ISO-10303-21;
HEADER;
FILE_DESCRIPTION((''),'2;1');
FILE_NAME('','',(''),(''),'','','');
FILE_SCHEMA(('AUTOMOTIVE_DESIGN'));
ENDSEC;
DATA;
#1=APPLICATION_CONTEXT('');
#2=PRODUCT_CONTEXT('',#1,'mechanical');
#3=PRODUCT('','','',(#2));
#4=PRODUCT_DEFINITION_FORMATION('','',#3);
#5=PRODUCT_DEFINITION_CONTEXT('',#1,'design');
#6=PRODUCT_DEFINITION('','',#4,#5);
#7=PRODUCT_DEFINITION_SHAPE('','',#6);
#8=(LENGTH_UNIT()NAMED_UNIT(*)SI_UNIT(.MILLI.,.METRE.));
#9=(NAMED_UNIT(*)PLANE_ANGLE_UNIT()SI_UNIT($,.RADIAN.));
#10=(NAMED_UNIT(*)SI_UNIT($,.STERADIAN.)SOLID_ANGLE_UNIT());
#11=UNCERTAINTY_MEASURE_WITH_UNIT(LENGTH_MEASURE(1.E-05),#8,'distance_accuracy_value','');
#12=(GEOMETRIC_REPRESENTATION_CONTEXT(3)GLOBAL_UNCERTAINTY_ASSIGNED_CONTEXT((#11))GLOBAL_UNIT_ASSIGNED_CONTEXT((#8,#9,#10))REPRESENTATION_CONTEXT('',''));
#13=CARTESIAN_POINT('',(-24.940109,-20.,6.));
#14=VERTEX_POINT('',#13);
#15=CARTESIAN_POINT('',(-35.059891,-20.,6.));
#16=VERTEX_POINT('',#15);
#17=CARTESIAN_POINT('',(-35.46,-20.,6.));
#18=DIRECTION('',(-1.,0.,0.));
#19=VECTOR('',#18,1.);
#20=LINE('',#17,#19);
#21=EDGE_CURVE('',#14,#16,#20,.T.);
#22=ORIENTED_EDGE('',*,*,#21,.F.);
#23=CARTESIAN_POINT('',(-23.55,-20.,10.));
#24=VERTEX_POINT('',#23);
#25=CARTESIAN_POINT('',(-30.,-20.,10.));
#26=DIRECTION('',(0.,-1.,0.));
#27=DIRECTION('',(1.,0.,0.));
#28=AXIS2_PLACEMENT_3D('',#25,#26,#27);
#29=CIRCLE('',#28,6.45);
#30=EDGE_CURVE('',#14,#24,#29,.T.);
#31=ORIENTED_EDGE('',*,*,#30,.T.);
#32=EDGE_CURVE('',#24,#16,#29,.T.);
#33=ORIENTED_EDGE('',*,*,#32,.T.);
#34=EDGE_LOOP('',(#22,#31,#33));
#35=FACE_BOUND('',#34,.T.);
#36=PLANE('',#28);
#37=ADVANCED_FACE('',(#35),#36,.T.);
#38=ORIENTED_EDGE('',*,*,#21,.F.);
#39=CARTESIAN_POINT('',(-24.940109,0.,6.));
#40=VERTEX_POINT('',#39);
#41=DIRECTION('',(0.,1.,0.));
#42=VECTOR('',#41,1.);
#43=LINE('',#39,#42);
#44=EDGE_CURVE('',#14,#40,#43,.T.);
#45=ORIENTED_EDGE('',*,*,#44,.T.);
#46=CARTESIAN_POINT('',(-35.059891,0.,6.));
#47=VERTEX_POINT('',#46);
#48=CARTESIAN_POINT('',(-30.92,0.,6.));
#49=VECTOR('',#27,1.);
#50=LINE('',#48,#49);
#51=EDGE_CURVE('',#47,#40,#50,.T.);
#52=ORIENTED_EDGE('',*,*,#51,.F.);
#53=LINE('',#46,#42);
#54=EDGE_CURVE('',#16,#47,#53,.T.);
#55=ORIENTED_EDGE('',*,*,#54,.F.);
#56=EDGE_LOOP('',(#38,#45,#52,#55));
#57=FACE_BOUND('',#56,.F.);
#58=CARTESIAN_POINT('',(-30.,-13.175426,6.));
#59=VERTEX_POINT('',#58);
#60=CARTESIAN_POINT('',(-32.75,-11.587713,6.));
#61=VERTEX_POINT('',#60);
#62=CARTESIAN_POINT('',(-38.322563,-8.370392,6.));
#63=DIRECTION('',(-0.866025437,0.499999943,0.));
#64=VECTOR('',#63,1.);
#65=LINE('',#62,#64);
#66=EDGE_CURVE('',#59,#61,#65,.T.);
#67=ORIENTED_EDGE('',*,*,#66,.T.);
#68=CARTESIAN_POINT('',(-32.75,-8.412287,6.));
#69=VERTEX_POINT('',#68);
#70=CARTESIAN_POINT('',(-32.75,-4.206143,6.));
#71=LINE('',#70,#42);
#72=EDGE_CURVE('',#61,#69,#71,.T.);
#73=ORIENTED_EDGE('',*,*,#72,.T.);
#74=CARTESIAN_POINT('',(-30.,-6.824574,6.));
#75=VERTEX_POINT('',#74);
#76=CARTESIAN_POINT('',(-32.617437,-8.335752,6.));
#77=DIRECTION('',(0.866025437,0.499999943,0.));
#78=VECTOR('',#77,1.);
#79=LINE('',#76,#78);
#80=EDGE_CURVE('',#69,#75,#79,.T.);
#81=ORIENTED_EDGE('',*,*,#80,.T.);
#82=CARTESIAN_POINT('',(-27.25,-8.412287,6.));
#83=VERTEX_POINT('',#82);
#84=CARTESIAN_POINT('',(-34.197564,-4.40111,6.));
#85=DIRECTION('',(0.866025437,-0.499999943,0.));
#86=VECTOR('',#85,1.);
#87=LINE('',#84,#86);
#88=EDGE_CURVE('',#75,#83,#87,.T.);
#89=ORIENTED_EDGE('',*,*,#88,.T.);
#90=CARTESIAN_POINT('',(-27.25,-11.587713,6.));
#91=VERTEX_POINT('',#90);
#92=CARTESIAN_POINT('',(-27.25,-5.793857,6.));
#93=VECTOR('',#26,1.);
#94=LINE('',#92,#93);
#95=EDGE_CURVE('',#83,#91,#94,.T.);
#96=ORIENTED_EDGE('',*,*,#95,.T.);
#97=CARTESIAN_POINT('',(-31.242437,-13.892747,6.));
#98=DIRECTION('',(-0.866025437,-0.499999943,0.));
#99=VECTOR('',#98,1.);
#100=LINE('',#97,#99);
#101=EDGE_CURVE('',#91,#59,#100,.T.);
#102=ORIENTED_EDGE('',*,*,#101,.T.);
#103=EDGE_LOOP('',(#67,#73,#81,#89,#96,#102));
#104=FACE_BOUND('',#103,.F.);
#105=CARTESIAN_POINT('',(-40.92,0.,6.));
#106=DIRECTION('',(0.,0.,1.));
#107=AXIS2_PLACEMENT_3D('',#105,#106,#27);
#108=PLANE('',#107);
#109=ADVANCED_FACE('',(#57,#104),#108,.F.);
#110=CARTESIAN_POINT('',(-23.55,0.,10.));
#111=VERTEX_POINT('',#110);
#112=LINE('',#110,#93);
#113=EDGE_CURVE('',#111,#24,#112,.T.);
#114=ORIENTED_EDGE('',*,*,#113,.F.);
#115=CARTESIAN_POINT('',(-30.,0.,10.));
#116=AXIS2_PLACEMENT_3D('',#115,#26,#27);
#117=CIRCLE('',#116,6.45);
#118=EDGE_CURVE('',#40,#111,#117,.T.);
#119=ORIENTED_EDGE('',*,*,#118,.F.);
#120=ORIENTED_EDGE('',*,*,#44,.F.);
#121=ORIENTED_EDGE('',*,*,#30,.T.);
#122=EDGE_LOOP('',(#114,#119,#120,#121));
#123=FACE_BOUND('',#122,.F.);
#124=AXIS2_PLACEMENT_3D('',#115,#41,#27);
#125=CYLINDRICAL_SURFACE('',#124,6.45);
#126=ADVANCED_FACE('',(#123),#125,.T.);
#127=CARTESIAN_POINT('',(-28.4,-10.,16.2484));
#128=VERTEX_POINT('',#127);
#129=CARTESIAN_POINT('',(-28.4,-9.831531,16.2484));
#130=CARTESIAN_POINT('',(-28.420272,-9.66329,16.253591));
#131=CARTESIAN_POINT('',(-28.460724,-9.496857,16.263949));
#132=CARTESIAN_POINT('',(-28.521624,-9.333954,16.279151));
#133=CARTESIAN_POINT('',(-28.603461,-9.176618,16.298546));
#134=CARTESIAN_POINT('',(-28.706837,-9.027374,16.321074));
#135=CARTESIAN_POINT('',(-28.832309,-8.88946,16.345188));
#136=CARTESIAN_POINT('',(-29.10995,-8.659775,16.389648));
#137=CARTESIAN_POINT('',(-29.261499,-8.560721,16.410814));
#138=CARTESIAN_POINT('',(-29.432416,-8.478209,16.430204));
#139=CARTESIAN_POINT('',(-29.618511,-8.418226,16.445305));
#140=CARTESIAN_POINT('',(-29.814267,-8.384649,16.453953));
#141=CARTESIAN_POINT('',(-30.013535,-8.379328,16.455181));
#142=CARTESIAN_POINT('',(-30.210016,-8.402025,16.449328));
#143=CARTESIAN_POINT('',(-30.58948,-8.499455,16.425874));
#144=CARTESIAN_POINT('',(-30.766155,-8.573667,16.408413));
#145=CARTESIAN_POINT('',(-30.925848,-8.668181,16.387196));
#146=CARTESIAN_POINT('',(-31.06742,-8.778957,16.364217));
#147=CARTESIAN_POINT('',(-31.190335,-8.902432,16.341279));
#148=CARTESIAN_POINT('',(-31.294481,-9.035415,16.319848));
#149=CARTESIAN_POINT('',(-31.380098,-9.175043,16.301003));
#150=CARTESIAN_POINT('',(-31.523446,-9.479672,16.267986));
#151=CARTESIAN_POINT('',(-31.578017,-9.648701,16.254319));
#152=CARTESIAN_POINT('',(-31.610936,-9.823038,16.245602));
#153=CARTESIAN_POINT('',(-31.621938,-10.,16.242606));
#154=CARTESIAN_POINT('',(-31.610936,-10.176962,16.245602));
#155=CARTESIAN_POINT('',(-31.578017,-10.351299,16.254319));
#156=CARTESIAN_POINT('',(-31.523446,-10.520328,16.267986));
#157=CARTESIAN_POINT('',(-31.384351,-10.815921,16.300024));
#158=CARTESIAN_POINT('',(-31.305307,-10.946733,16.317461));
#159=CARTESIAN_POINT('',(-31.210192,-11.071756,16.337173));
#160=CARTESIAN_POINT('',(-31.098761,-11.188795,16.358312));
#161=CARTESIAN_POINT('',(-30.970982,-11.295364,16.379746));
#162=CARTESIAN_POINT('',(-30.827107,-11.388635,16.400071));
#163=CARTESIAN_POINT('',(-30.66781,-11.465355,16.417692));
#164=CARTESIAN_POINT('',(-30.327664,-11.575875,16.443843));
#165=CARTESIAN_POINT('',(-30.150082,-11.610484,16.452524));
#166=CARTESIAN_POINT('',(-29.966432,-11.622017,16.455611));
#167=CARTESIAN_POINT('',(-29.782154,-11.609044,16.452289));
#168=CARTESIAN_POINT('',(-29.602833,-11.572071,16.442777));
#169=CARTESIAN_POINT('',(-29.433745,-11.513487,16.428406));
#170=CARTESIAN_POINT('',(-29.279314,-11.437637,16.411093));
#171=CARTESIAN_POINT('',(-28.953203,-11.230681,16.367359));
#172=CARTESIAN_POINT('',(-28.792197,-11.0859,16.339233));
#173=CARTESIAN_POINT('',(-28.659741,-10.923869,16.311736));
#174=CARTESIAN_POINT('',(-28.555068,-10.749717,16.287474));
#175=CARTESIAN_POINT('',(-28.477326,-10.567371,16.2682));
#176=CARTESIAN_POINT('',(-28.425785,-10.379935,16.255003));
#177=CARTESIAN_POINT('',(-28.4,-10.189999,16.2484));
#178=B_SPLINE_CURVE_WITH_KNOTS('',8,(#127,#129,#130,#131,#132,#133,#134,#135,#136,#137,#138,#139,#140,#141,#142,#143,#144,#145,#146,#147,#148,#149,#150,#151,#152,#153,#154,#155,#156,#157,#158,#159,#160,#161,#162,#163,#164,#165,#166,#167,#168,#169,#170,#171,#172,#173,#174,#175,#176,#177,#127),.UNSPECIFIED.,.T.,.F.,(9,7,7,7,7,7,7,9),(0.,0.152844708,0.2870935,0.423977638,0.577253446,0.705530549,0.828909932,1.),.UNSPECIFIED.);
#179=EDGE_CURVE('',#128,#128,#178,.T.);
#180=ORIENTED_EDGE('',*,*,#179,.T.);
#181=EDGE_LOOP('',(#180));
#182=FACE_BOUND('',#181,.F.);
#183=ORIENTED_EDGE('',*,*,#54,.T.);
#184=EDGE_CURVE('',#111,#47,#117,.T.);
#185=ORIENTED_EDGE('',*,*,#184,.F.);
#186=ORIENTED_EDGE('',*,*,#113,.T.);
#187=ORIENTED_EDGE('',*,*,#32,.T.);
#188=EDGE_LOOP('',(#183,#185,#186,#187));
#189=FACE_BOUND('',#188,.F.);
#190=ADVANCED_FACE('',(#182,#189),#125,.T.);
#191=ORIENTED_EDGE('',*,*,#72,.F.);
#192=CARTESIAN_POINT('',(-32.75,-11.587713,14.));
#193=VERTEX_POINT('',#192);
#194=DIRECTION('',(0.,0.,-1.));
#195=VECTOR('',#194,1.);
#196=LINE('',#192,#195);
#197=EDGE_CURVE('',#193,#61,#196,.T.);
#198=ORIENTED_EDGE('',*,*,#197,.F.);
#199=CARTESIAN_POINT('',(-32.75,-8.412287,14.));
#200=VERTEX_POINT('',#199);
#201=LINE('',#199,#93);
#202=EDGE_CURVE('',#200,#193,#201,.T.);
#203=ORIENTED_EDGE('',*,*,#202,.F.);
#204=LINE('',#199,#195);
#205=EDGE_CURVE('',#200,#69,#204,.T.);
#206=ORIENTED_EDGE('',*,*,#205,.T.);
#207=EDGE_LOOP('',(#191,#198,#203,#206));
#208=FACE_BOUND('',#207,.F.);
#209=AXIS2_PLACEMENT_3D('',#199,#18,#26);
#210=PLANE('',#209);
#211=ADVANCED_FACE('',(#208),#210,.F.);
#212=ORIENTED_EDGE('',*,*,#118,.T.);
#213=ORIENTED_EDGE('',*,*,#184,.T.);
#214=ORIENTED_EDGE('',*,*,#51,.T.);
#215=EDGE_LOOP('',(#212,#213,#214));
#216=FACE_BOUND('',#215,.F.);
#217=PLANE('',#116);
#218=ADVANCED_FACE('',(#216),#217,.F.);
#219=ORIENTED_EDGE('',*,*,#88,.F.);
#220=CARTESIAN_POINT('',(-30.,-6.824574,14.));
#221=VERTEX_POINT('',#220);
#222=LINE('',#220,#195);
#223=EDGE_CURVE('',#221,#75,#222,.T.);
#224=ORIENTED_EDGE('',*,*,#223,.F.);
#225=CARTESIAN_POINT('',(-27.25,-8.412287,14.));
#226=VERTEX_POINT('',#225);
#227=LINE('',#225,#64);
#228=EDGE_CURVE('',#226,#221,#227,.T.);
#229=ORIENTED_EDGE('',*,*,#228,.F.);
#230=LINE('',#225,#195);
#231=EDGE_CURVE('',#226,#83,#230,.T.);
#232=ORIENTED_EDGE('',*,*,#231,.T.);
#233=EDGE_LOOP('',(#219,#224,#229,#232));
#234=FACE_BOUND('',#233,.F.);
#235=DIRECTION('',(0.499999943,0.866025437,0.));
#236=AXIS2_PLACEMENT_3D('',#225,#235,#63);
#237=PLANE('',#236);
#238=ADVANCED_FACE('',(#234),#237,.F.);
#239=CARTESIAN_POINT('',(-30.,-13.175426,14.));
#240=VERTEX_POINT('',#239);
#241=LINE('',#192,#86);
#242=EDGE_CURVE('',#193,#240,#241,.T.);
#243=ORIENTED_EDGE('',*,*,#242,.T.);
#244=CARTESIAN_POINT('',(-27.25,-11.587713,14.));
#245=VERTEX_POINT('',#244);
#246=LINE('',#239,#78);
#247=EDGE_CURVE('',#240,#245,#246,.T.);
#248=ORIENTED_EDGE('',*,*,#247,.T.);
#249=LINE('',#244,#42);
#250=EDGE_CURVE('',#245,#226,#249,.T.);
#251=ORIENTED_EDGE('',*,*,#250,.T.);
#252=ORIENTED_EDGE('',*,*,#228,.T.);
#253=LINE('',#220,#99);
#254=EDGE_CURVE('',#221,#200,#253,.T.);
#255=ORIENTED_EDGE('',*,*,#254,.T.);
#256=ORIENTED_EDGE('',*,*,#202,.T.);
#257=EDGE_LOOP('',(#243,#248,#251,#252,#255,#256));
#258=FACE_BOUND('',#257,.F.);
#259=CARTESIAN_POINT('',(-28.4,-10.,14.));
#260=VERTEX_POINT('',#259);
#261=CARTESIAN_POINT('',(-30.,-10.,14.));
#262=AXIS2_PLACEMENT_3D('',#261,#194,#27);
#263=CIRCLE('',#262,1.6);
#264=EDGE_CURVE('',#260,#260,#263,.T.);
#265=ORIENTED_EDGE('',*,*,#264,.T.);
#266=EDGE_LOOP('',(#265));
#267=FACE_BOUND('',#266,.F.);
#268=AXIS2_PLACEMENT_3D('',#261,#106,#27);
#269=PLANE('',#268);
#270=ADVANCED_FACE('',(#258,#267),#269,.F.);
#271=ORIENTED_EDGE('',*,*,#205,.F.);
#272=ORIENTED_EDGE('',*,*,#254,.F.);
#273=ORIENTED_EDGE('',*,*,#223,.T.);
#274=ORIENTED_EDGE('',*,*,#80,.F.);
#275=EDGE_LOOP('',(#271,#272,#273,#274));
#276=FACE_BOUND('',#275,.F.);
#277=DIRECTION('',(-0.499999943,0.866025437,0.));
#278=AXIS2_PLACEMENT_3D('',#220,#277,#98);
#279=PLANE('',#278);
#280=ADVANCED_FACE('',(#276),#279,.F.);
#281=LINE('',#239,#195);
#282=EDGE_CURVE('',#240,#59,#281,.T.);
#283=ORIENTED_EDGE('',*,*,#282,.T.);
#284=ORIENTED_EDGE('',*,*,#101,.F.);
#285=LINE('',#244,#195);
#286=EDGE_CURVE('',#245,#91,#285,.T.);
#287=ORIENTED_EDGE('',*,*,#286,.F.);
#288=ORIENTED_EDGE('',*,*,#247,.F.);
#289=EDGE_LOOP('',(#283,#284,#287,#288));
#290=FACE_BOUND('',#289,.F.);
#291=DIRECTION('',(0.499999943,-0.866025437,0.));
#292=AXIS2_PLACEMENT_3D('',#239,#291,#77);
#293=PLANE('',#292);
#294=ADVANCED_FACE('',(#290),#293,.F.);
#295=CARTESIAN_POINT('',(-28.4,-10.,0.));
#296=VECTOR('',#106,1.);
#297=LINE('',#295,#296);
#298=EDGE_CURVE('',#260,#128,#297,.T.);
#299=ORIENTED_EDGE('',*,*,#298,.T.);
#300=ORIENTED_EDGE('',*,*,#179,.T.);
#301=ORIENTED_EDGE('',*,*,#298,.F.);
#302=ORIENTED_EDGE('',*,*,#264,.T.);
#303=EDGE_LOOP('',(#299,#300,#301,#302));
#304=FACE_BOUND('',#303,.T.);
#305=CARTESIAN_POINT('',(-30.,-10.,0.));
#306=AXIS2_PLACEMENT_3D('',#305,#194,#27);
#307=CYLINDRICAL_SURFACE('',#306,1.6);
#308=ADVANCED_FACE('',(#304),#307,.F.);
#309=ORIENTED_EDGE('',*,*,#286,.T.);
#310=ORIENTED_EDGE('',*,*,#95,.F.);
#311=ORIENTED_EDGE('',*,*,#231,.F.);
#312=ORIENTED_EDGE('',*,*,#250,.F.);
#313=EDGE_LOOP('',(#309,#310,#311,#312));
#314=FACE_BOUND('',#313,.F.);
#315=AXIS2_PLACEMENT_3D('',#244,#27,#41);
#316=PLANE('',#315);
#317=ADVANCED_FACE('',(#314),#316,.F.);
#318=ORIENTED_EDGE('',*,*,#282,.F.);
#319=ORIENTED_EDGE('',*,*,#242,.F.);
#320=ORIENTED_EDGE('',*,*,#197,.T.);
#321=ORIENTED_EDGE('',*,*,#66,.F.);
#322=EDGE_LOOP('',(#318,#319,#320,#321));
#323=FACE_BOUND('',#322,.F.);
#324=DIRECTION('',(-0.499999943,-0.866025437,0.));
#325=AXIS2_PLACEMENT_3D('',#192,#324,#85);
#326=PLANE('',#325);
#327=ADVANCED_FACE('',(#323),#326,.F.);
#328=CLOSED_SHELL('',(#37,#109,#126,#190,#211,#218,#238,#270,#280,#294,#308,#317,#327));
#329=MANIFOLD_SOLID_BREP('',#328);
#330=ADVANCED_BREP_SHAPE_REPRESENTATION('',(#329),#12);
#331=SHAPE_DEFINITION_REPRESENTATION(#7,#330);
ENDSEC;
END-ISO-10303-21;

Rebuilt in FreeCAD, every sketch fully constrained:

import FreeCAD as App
import Part
import Sketcher
Q = App.Units.Quantity


def add_polygon(sketch, points):
    """Adds a closed chain of lines whose ends are joined by coincident constraints."""
    first, n = sketch.GeometryCount, len(points)
    for a, b in zip(points, points[1:] + points[:1]):
        sketch.addGeometry(Part.LineSegment(App.Vector(*a, 0), App.Vector(*b, 0)), False)
    for i in range(n):
        sketch.addConstraint(Sketcher.Constraint("Coincident", first + i, 2, first + (i + 1) % n, 1))

doc = App.newDocument("Part")
params = doc.addObject("Spreadsheet::Sheet", "Params")
for row, (alias, value) in enumerate([
    ("sketch1_diameter", "12.9 mm"),
    ("pad1_length", "20 mm"),
    ("sketch2_diameter", "3.2 mm"),
    ("pocket1_length", "20 mm"),
    ("pocket2_length", "10 mm"),
    ("sketch4_width", "20 mm"),
    ("sketch4_height", "6 mm"),
    ("pocket3_length", "21 mm"),
], start=1):
    params.set(f"A{row}", alias)
    params.set(f"B{row}", "=" + value)
    params.setAlias(f"B{row}", alias)

body = doc.addObject("PartDesign::Body", "Body")

sketch1 = body.newObject("Sketcher::SketchObject", "Sketch")
sketch1.AttachmentSupport = (doc.getObject("XZ_Plane"), [""])
sketch1.MapMode = "FlatFace"
sketch1.addGeometry(Part.Circle(App.Vector(-30, 10, 0), App.Vector(0, 0, 1), 6), False)
sketch1.addConstraint(Sketcher.Constraint("Diameter", 0, 12.9))
sketch1.addConstraint(Sketcher.Constraint("DistanceX", 0, 3, -1, 1, 30.0))
sketch1.addConstraint(Sketcher.Constraint("DistanceY", -1, 1, 0, 3, 10.0))
sketch1.setExpression("Constraints[0]", "Params.sketch1_diameter")
pad1 = body.newObject("PartDesign::Pad", "Pad")
pad1.Profile = sketch1
pad1.setExpression("Length", "Params.pad1_length")

sketch2 = body.newObject("Sketcher::SketchObject", "Sketch001")
sketch2.AttachmentSupport = (doc.getObject("XY_Plane"), [""])
sketch2.MapMode = "FlatFace"
sketch2.addGeometry(Part.Circle(App.Vector(-30, -10, 0), App.Vector(0, 0, 1), 1.6), False)
sketch2.addConstraint(Sketcher.Constraint("Diameter", 0, 3.2))
sketch2.addConstraint(Sketcher.Constraint("DistanceX", 0, 3, -1, 1, 30.0))
sketch2.addConstraint(Sketcher.Constraint("DistanceY", 0, 3, -1, 1, 10.0))
sketch2.setExpression("Constraints[0]", "Params.sketch2_diameter")
pocket1 = body.newObject("PartDesign::Pocket", "Pocket")
pocket1.Profile = sketch2
pocket1.setExpression("Length", "Params.pocket1_length")
pocket1.Reversed = True

sketch3 = body.newObject("Sketcher::SketchObject", "Sketch002")
sketch3.AttachmentSupport = (doc.getObject("XY_Plane"), [""])
sketch3.MapMode = "FlatFace"
sketch3.AttachmentOffset = App.Placement(App.Vector(0, 0, 14), App.Rotation())
add_polygon(sketch3, [(-27.2, -8.4), (-30, -6.8), (-32.8, -8.4), (-32.8, -11.6), (-30, -13.2), (-27.2, -11.6)])
sketch3.addConstraint(Sketcher.Constraint("Vertical", 2))
sketch3.addConstraint(Sketcher.Constraint("Vertical", 5))
sketch3.addConstraint(Sketcher.Constraint("Parallel", 0, 3))
sketch3.addConstraint(Sketcher.Constraint("Parallel", 1, 4))
sketch3.addConstraint(Sketcher.Constraint("Horizontal", 2, 2, 4, 2))
sketch3.addConstraint(Sketcher.Constraint("Horizontal", 1, 2, 5, 2))
sketch3.addConstraint(Sketcher.Constraint("Vertical", 0, 2, 3, 2))
sketch3.addConstraint(Sketcher.Constraint("Angle", 0, Q("150.000004 deg")))
sketch3.addConstraint(Sketcher.Constraint("DistanceX", 0, 2, -1, 1, 30.0))
sketch3.addConstraint(Sketcher.Constraint("DistanceX", 2, 2, 4, 2, 5.5))
sketch3.addConstraint(Sketcher.Constraint("DistanceY", 2, 2, 2, 1, 3.175426))
sketch3.addConstraint(Sketcher.Constraint("DistanceY", 0, 2, -1, 1, 6.824574))
pocket2 = body.newObject("PartDesign::Pocket", "Pocket001")
pocket2.Profile = sketch3
pocket2.setExpression("Length", "Params.pocket2_length")

sketch4 = body.newObject("Sketcher::SketchObject", "Sketch003")
sketch4.AttachmentSupport = (doc.getObject("XZ_Plane"), [""])
sketch4.MapMode = "FlatFace"
add_polygon(sketch4, [(-41, 6), (-41, 0), (-21, 0), (-21, 6)])
sketch4.addConstraint(Sketcher.Constraint("Vertical", 0))
sketch4.addConstraint(Sketcher.Constraint("Horizontal", 1))
sketch4.addConstraint(Sketcher.Constraint("Vertical", 2))
sketch4.addConstraint(Sketcher.Constraint("Horizontal", 3))
sketch4.addConstraint(Sketcher.Constraint("PointOnObject", 0, 2, -1))
sketch4.addConstraint(Sketcher.Constraint("DistanceX", 1, 1, 1, 2, 20.0))
sketch4.addConstraint(Sketcher.Constraint("DistanceY", 0, 2, 0, 1, 6.0))
sketch4.addConstraint(Sketcher.Constraint("DistanceX", 0, 2, -1, 1, 40.92))
sketch4.setExpression("Constraints[9]", "Params.sketch4_width")
sketch4.setExpression("Constraints[10]", "Params.sketch4_height")
pocket3 = body.newObject("PartDesign::Pocket", "Pocket002")
pocket3.Profile = sketch4
pocket3.setExpression("Length", "Params.pocket3_length")
pocket3.Reversed = True

doc.recompute()
